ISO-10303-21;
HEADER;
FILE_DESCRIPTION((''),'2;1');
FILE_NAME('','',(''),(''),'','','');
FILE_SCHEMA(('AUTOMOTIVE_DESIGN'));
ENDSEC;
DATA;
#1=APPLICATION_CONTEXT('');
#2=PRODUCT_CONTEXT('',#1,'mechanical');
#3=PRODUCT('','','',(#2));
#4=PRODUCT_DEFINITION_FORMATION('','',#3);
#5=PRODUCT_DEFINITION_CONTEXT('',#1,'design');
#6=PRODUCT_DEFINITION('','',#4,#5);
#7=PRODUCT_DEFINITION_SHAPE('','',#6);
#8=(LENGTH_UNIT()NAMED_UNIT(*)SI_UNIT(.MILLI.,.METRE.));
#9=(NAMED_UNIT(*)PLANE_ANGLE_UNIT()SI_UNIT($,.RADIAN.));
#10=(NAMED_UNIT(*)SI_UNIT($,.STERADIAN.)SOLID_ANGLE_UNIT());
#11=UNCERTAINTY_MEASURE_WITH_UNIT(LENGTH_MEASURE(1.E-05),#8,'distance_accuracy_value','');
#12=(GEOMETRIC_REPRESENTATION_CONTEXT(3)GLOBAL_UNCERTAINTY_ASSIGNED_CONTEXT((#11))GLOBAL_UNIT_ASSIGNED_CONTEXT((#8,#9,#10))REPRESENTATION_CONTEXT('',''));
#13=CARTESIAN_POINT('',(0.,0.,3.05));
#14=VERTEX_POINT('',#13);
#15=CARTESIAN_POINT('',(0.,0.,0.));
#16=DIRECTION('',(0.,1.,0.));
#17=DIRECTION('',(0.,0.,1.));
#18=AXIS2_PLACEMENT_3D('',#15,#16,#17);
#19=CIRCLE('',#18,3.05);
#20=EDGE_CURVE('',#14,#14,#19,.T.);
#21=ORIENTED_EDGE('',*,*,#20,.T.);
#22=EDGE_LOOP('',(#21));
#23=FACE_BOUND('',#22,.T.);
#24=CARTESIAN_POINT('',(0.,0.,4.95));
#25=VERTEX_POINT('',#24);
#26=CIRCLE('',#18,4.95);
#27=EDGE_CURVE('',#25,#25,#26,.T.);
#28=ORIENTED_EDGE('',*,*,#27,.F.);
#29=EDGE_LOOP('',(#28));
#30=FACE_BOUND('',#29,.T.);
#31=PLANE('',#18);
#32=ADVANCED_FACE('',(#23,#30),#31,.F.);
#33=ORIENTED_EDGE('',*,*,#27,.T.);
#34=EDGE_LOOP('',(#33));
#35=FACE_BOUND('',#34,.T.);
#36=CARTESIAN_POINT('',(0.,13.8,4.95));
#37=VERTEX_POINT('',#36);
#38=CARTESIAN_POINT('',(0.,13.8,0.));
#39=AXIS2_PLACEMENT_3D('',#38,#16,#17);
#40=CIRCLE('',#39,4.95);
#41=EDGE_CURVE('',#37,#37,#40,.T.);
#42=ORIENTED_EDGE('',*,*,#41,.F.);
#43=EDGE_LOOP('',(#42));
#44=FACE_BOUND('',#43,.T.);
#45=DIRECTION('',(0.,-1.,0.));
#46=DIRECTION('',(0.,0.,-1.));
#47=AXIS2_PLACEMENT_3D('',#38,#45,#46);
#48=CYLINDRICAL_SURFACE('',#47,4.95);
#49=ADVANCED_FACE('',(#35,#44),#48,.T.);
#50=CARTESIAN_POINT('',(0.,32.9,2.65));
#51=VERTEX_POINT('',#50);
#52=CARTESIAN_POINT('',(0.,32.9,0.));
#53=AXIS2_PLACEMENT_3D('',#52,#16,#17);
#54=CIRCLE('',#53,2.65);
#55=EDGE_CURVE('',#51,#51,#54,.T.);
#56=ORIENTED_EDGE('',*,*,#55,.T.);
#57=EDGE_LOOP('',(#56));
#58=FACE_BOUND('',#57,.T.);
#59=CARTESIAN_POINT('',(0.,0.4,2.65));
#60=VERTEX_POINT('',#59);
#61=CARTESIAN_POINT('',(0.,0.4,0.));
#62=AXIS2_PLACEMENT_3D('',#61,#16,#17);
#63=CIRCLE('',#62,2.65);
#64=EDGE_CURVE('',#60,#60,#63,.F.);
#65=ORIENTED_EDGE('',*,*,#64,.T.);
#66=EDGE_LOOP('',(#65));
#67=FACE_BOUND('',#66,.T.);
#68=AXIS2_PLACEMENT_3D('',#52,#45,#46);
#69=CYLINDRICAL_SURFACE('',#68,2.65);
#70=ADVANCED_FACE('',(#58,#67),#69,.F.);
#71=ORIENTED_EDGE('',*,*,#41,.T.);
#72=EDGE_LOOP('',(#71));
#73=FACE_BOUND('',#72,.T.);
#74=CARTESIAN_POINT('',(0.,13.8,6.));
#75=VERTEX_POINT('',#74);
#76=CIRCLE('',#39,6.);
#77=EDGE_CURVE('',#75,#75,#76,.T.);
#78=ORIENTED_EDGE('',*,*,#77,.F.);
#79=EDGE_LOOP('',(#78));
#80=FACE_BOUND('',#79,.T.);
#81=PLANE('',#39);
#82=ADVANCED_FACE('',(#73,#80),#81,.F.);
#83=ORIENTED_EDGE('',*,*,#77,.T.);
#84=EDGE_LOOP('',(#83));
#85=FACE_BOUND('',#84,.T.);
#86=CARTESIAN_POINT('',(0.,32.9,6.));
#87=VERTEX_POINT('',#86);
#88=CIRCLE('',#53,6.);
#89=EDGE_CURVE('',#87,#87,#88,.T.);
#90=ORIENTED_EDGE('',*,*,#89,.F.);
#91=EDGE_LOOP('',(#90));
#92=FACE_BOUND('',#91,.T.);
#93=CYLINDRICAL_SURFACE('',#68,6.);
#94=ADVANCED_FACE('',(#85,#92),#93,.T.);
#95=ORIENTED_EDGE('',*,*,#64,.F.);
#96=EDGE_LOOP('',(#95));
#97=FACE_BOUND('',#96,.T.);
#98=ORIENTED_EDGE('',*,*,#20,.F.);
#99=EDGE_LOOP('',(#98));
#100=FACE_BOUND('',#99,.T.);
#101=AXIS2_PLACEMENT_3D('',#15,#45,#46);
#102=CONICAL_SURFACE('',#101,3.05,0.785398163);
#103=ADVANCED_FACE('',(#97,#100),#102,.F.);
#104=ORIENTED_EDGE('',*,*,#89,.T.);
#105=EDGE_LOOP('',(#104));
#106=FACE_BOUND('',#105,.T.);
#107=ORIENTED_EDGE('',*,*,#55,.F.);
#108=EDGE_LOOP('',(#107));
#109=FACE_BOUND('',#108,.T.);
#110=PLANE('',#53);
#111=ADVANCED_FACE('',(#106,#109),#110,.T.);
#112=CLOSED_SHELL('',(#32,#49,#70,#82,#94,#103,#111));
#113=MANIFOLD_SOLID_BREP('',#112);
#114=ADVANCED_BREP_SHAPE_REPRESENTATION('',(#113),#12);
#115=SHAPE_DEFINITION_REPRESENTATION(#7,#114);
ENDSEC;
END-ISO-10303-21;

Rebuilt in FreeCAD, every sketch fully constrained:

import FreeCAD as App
import Part
import Sketcher
from FreeCAD import Vector


def edges_at(feature, points):
    """Names of the edges that pass closest to the given points."""
    edges = feature.Shape.Edges
    near = lambda p: min(range(len(edges)), key=lambda i: edges[i].distToShape(Part.Vertex(*p))[0])
    return sorted({f"Edge{near(p) + 1}" for p in points})

doc = App.newDocument("Part")
body = doc.addObject("PartDesign::Body", "Body")

# Sketch on XZ plane
sketch1 = body.newObject("Sketcher::SketchObject", "Sketch")
sketch1.AttachmentSupport = (doc.getObject("XZ_Plane"), [""])
sketch1.MapMode = "FlatFace"
sketch1.addGeometry(Part.Circle(Vector(0, 0, 0), Vector(0, 0, 1), 5), False)
sketch1.addConstraint([
    Sketcher.Constraint("Coincident", 0, 3, -1, 1),
    Sketcher.Constraint("Diameter", 0, 9.9),
])
pad1 = body.newObject("PartDesign::Pad", "Pad")
pad1.Profile = sketch1
pad1.Length = 13.8
pad1.Reversed = True

# Sketch on XZ plane
sketch2 = body.newObject("Sketcher::SketchObject", "Sketch001")
sketch2.AttachmentSupport = (doc.getObject("XZ_Plane"), [""])
sketch2.MapMode = "FlatFace"
sketch2.AttachmentOffset = App.Placement(Vector(0, 0, -13.8), App.Rotation())
sketch2.addGeometry(Part.Circle(Vector(0, 0, 0), Vector(0, 0, 1), 6), False)
sketch2.addConstraint([
    Sketcher.Constraint("Coincident", 0, 3, -1, 1),
    Sketcher.Constraint("Diameter", 0, 12.0),
])
pad2 = body.newObject("PartDesign::Pad", "Pad001")
pad2.Profile = sketch2
pad2.Length = 19.1
pad2.Reversed = True

# Sketch on XZ plane
sketch3 = body.newObject("Sketcher::SketchObject", "Sketch002")
sketch3.AttachmentSupport = (doc.getObject("XZ_Plane"), [""])
sketch3.MapMode = "FlatFace"
sketch3.addGeometry(Part.Circle(Vector(0, 0, 0), Vector(0, 0, 1), 2.6), False)
sketch3.addConstraint([
    Sketcher.Constraint("Coincident", 0, 3, -1, 1),
    Sketcher.Constraint("Diameter", 0, 5.3),
])
pocket1 = body.newObject("PartDesign::Pocket", "Pocket")
pocket1.Profile = sketch3
pocket1.Type = "ThroughAll"
doc.recompute()

chamfer = body.newObject("PartDesign::Chamfer", "Chamfer")
chamfer.Base = (pocket1, edges_at(pocket1, [(-2.65, 0, 0)]))
chamfer.Size = 0.4

doc.recompute()
